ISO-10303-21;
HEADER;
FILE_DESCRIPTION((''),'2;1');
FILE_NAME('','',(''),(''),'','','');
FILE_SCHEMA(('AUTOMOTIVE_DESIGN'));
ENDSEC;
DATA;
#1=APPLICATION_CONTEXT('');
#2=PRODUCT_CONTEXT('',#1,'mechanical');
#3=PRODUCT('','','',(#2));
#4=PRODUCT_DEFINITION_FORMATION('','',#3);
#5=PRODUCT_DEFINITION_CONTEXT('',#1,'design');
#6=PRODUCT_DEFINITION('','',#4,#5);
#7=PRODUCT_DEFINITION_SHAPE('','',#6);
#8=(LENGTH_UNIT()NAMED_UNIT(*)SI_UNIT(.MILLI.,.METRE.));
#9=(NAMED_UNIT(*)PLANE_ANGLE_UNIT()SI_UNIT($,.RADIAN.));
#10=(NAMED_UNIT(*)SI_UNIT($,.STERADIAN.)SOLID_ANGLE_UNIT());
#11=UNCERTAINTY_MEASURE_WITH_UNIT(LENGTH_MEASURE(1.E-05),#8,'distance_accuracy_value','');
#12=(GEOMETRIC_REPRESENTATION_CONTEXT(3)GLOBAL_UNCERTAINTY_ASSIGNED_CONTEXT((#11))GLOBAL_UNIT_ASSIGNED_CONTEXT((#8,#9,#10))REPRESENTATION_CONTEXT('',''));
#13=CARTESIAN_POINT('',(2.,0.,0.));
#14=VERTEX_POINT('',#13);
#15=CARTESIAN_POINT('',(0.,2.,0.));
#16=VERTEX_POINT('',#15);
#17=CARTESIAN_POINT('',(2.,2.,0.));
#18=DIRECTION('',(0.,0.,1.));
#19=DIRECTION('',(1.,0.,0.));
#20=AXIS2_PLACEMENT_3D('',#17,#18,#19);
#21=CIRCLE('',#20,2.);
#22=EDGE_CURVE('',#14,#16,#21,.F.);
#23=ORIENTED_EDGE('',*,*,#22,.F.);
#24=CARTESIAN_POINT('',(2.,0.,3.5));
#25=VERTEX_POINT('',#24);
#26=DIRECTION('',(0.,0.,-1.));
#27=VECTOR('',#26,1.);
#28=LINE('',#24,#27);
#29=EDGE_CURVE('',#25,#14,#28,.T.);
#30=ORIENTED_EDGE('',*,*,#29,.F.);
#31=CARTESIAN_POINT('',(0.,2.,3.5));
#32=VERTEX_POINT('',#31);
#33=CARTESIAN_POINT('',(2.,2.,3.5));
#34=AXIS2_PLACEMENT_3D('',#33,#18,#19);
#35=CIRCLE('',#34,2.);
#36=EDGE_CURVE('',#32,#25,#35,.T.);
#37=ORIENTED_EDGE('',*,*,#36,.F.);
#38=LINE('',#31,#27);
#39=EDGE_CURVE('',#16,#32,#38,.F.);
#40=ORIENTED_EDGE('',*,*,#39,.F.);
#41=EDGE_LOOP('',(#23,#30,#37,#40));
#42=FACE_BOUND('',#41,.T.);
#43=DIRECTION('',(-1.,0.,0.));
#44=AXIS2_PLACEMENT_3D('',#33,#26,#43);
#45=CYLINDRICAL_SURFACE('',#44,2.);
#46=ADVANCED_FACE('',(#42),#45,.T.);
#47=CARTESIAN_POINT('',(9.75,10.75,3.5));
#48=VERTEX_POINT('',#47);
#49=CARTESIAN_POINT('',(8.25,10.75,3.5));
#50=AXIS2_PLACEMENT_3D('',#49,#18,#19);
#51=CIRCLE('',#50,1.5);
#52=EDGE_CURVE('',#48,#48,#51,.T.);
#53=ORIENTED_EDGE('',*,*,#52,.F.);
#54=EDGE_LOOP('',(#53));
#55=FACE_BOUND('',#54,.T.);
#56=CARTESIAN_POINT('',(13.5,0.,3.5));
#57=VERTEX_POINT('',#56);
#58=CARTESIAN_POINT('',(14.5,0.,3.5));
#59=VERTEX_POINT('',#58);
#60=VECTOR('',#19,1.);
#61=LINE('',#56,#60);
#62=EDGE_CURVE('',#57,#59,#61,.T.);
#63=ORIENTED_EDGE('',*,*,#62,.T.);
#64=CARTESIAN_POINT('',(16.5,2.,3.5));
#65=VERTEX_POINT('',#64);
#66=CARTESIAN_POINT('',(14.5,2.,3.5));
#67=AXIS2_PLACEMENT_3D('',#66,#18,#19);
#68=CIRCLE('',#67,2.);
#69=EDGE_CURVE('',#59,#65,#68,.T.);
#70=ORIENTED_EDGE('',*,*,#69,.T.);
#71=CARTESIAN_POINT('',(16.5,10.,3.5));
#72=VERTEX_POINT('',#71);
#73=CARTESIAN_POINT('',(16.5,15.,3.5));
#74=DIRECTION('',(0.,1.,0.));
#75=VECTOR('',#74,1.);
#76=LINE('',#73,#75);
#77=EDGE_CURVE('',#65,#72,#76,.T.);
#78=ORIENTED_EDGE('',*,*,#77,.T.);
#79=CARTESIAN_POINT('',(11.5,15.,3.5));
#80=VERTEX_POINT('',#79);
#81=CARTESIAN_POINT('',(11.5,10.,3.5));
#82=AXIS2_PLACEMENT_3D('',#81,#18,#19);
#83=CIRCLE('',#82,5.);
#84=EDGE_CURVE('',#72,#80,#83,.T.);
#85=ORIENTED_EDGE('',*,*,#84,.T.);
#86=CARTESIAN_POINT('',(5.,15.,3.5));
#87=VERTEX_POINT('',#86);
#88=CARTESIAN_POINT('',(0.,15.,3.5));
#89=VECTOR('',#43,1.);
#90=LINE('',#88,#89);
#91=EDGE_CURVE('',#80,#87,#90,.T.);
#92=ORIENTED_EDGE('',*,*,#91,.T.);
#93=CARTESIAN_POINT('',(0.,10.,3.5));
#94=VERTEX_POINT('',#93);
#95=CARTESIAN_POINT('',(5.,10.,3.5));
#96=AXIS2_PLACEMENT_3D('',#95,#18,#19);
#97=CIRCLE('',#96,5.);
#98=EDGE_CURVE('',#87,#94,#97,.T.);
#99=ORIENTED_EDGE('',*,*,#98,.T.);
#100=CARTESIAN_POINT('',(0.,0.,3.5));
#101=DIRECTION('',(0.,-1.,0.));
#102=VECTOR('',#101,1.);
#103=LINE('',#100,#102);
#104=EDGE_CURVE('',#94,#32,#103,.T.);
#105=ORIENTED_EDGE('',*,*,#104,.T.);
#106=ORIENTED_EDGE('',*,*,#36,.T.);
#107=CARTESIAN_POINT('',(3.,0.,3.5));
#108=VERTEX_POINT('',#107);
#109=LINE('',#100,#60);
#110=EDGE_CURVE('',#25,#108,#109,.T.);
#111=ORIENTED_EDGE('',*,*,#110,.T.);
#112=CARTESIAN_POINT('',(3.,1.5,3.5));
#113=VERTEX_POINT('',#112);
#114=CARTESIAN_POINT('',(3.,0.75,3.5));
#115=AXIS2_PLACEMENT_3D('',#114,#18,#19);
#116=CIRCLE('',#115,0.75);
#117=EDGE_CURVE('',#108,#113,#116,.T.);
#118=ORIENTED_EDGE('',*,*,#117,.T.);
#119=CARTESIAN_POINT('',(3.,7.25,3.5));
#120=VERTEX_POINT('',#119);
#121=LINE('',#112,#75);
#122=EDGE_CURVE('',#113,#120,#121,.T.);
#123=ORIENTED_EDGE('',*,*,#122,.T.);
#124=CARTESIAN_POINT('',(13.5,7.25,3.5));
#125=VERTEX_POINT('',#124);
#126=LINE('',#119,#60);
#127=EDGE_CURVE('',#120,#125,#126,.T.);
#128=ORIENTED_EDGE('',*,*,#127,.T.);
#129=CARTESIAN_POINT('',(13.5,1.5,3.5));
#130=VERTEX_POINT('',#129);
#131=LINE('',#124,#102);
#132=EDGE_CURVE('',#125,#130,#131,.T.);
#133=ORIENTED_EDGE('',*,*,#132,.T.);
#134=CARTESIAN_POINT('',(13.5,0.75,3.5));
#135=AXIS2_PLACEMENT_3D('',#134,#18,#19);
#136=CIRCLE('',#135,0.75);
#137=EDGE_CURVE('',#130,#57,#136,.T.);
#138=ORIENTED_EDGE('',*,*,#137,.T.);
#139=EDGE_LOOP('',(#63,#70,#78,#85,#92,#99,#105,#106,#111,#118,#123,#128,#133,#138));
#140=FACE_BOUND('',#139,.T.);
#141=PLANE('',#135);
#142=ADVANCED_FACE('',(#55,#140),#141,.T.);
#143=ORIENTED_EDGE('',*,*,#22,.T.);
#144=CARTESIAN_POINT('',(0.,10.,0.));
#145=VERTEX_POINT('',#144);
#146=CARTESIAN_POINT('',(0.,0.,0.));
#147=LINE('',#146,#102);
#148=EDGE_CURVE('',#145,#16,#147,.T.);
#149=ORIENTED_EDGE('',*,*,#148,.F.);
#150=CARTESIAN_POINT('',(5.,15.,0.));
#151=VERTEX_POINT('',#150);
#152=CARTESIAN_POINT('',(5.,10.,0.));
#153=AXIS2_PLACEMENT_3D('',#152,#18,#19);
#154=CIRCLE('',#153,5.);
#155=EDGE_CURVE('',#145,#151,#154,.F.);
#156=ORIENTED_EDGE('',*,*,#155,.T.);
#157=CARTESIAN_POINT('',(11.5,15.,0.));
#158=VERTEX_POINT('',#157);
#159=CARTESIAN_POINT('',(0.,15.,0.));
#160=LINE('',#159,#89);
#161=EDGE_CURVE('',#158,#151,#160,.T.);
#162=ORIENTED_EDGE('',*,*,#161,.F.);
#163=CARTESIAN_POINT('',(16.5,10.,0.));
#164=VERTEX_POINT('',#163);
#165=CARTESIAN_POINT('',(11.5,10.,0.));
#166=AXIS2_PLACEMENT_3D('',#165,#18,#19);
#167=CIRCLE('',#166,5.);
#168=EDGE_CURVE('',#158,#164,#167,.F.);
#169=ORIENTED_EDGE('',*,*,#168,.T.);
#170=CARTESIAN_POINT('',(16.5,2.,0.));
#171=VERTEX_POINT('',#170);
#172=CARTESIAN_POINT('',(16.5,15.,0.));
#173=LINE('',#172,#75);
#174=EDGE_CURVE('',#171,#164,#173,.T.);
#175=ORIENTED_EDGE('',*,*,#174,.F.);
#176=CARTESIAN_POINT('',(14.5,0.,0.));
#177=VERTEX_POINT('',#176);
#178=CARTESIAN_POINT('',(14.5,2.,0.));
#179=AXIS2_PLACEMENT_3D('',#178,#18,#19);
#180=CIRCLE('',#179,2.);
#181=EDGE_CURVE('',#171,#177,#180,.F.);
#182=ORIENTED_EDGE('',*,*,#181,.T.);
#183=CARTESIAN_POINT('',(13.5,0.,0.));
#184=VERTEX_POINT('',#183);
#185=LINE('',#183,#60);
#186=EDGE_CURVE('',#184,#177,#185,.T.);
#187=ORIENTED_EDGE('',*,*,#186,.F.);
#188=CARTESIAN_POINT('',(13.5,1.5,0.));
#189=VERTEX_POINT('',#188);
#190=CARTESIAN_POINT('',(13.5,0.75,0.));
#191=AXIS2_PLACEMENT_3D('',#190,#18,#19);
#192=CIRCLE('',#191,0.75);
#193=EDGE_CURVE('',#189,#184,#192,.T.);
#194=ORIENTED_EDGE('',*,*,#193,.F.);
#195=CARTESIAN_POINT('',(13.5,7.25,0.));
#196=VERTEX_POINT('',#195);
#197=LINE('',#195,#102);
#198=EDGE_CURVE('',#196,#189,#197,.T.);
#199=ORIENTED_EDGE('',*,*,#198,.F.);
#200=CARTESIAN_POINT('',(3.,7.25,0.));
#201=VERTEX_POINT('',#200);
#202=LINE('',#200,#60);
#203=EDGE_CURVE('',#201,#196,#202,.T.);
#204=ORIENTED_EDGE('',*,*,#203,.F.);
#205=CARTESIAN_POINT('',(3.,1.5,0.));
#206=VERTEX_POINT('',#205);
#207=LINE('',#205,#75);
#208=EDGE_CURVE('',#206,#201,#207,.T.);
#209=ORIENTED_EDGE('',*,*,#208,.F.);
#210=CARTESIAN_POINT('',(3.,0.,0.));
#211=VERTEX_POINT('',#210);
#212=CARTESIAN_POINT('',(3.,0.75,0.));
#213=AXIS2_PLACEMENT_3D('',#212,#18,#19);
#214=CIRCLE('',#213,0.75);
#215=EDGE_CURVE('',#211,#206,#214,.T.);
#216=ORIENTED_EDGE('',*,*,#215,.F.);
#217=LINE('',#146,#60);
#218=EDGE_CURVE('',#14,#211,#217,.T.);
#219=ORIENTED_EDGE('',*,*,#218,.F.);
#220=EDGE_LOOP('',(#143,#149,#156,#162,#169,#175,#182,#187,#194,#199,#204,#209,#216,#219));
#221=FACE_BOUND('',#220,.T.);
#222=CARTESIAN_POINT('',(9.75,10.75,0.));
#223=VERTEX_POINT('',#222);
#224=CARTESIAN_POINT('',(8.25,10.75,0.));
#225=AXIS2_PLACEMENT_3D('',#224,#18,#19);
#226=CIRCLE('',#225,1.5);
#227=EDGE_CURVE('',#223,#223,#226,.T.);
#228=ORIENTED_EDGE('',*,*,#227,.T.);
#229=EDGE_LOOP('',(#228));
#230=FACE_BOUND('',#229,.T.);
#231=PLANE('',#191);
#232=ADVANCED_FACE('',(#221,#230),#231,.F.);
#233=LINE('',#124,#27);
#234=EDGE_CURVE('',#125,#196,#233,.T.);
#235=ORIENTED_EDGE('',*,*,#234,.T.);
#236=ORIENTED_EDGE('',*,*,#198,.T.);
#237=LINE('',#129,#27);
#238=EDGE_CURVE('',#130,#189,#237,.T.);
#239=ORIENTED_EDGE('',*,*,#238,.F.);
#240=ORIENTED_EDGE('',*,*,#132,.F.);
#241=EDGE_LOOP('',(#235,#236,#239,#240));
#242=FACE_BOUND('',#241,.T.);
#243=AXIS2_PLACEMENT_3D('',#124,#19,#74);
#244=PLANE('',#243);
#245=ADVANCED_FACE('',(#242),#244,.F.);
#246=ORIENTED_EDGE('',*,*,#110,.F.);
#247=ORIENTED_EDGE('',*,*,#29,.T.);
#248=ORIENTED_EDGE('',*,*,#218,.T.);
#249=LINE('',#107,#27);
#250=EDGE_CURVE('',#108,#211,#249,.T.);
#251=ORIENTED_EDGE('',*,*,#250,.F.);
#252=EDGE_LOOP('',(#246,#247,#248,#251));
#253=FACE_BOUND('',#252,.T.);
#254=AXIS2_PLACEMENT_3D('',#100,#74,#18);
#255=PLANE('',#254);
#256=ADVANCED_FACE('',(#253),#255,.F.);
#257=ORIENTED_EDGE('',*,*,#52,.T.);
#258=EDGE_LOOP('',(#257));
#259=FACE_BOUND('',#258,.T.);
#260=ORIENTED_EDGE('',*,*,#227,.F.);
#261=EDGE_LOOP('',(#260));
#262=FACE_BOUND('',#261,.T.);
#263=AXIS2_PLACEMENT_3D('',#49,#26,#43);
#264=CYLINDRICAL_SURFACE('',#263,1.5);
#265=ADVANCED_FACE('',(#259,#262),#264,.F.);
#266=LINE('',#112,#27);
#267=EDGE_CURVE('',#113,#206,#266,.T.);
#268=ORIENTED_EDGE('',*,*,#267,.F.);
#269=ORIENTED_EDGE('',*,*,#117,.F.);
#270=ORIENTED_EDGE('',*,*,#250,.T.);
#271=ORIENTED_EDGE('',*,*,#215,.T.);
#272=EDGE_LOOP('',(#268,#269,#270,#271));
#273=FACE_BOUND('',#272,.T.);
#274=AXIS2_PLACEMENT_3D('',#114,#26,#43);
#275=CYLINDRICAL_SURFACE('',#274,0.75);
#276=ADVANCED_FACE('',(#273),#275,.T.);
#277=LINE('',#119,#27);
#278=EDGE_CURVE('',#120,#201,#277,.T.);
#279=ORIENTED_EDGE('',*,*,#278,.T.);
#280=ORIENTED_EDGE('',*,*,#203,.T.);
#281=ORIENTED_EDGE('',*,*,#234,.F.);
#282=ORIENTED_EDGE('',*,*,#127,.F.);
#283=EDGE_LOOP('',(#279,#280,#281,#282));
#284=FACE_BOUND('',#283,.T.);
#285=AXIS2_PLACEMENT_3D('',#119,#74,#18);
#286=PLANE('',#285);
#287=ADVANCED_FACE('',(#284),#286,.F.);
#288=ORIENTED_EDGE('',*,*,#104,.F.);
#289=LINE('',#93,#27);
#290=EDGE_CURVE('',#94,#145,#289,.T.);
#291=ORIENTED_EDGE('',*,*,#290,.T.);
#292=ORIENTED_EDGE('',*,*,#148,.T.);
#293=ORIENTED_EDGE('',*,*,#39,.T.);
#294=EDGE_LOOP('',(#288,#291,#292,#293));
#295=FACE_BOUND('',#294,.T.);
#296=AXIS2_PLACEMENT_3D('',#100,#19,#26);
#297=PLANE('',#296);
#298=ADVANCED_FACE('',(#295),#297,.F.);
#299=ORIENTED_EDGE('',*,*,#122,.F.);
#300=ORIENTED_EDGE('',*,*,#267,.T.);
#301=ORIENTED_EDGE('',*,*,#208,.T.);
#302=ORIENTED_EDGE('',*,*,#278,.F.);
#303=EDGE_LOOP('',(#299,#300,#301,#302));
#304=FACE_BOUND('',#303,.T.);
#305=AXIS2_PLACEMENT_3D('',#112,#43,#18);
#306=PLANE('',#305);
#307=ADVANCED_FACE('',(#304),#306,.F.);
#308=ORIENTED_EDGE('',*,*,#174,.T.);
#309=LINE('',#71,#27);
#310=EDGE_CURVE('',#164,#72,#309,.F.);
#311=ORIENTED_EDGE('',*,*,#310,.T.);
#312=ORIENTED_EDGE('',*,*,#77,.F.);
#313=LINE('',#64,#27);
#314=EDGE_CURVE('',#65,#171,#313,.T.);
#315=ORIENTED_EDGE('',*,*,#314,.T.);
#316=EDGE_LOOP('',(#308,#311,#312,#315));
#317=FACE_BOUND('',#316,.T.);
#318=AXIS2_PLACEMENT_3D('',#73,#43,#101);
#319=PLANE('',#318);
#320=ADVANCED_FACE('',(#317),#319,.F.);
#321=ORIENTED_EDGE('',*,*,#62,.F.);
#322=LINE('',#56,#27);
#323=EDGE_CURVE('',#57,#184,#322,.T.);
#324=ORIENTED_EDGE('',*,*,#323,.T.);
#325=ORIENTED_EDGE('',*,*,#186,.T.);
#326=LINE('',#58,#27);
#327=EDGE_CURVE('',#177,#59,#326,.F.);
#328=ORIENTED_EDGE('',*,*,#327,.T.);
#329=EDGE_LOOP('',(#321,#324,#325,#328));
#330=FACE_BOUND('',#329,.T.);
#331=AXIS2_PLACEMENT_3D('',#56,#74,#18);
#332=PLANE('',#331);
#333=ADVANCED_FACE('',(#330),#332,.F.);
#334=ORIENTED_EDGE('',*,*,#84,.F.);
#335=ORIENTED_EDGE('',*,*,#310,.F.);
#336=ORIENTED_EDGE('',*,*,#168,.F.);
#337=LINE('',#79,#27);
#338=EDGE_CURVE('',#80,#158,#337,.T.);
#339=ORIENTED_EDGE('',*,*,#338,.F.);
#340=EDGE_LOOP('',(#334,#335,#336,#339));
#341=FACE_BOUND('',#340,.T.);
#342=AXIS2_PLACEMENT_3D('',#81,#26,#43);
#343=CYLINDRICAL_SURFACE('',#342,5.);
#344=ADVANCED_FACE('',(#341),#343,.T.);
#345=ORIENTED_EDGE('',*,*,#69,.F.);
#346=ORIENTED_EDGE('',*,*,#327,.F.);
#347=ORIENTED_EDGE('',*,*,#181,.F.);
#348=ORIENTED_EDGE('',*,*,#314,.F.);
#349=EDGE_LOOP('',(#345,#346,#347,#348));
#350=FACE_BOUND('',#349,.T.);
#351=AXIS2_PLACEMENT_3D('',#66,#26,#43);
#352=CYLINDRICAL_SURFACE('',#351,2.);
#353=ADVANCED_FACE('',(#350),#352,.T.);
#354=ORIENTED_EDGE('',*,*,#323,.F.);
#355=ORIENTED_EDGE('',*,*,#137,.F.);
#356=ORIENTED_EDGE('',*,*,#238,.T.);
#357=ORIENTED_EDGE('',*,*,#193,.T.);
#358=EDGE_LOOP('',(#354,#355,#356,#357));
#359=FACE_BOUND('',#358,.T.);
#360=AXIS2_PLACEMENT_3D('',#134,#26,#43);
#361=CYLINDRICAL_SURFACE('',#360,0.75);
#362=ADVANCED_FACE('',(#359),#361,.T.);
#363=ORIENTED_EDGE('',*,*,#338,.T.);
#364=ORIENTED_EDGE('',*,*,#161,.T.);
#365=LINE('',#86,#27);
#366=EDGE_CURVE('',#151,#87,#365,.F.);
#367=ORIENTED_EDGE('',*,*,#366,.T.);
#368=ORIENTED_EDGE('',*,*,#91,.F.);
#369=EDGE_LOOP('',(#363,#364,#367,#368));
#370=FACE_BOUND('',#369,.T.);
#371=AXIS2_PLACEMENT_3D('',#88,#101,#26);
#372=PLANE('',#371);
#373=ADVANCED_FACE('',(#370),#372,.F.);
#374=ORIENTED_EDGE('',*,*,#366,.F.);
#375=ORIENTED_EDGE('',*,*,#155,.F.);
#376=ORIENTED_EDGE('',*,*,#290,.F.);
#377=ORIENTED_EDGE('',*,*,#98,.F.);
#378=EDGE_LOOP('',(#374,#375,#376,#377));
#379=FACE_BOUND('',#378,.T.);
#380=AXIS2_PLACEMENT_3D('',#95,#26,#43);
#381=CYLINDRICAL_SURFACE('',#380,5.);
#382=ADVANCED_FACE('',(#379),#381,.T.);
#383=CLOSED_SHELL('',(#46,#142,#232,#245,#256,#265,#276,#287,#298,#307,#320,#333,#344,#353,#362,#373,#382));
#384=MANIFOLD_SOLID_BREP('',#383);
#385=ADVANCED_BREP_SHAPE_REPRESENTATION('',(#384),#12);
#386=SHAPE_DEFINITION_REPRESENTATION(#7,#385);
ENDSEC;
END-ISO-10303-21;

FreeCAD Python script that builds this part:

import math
import FreeCAD as App
import Part
import Sketcher
from FreeCAD import Vector


def edges_at(feature, points):
    """Names of the edges that pass closest to the given points."""
    edges = feature.Shape.Edges
    near = lambda p: min(range(len(edges)), key=lambda i: edges[i].distToShape(Part.Vertex(*p))[0])
    return sorted({f"Edge{near(p) + 1}" for p in points})

doc = App.newDocument("Part")
body = doc.addObject("PartDesign::Body", "Body")

# Sketch on XY plane
sketch1 = doc.addObject("Sketcher::SketchObject", "Sketch")
body.addObject(sketch1)
sketch1.AttachmentSupport = (doc.XY_Plane, [""])
sketch1.MapMode = "FlatFace"
sketch1.addGeometry([
    Part.LineSegment(Vector(16.5, 15, 0), Vector(0, 15, 0)),  # 0
    Part.LineSegment(Vector(0, 15, 0), Vector(0, 0, 0)),  # 1
    Part.LineSegment(Vector(0, 0, 0), Vector(3, 0, 0)),  # 2
    Part.ArcOfCircle(Part.Circle(Vector(3, 0.8, 0), Vector(0, 0, 1), 0.8), math.radians(-90), math.radians(90)),  # 3
    Part.LineSegment(Vector(3, 1.5, 0), Vector(3, 7.2, 0)),  # 4
    Part.LineSegment(Vector(3, 7.2, 0), Vector(13.5, 7.2, 0)),  # 5
    Part.LineSegment(Vector(13.5, 7.2, 0), Vector(13.5, 1.5, 0)),  # 6
    Part.ArcOfCircle(Part.Circle(Vector(13.5, 0.8, 0), Vector(0, 0, 1), 0.8), math.radians(90), math.radians(270)),  # 7
    Part.LineSegment(Vector(13.5, 0, 0), Vector(16.5, 0, 0)),  # 8
    Part.LineSegment(Vector(16.5, 0, 0), Vector(16.5, 15, 0)),  # 9
    Part.Circle(Vector(8.2, 10.8, 0), Vector(0, 0, 1), 1.5),  # 10
], False)
sketch1.addConstraint([
    Sketcher.Constraint("Coincident", 0, 2, 1, 1),
    Sketcher.Constraint("Coincident", 1, 2, 2, 1),
    Sketcher.Constraint("Tangent", 2, 2, 3, 1),
    Sketcher.Constraint("Coincident", 3, 2, 4, 1),
    Sketcher.Constraint("Coincident", 4, 2, 5, 1),
    Sketcher.Constraint("Coincident", 5, 2, 6, 1),
    Sketcher.Constraint("Coincident", 6, 2, 7, 1),
    Sketcher.Constraint("Tangent", 7, 2, 8, 1),
    Sketcher.Constraint("Coincident", 8, 2, 9, 1),
    Sketcher.Constraint("Coincident", 9, 2, 0, 1),
    Sketcher.Constraint("Horizontal", 0),
    Sketcher.Constraint("Vertical", 1),
    Sketcher.Constraint("Horizontal", 2),
    Sketcher.Constraint("Vertical", 4),
    Sketcher.Constraint("Horizontal", 5),
    Sketcher.Constraint("Vertical", 6),
    Sketcher.Constraint("Horizontal", 8),
    Sketcher.Constraint("Vertical", 9),
    Sketcher.Constraint("Coincident", 1, 2, -1, 1),
    Sketcher.Constraint("Equal", 3, 7),
    Sketcher.Constraint("PointOnObject", 7, 2, -1),
    Sketcher.Constraint("Vertical", 2, 2, 3, 2),
    Sketcher.Constraint("Vertical", 7, 3, 5, 2),
    Sketcher.Constraint("Equal", 2, 8),
    Sketcher.Constraint("Diameter", 10, 3.0),
    Sketcher.Constraint("DistanceX", 2, 1, 2, 2, 3.0),
    Sketcher.Constraint("DistanceY", 1, 2, 1, 1, 15.0),
    Sketcher.Constraint("Radius", 3, 0.75),
    Sketcher.Constraint("DistanceX", 0, 2, 0, 1, 16.5),
    Sketcher.Constraint("DistanceY", 3, 3, 10, 3, 10.0),
    Sketcher.Constraint("DistanceY", 4, 1, 4, 2, 5.75),
    Sketcher.Constraint("DistanceX", -1, 1, 10, 3, 8.25),
])
pad1 = doc.addObject("PartDesign::Pad", "Pad")
body.addObject(pad1)
pad1.Profile = sketch1
pad1.Length = 3.5
doc.recompute()

fillet = doc.addObject("PartDesign::Fillet", "Fillet")
body.addObject(fillet)
fillet.Base = (pad1, edges_at(pad1, [(16.5, 0, 1.75), (0, 0, 1.75)]))
fillet.Radius = 2
doc.recompute()

fillet2 = doc.addObject("PartDesign::Fillet", "Fillet001")
body.addObject(fillet2)
fillet2.Base = (fillet, edges_at(fillet, [(0, 15, 1.75), (16.5, 15, 1.75)]))
fillet2.Radius = 5

doc.recompute()
